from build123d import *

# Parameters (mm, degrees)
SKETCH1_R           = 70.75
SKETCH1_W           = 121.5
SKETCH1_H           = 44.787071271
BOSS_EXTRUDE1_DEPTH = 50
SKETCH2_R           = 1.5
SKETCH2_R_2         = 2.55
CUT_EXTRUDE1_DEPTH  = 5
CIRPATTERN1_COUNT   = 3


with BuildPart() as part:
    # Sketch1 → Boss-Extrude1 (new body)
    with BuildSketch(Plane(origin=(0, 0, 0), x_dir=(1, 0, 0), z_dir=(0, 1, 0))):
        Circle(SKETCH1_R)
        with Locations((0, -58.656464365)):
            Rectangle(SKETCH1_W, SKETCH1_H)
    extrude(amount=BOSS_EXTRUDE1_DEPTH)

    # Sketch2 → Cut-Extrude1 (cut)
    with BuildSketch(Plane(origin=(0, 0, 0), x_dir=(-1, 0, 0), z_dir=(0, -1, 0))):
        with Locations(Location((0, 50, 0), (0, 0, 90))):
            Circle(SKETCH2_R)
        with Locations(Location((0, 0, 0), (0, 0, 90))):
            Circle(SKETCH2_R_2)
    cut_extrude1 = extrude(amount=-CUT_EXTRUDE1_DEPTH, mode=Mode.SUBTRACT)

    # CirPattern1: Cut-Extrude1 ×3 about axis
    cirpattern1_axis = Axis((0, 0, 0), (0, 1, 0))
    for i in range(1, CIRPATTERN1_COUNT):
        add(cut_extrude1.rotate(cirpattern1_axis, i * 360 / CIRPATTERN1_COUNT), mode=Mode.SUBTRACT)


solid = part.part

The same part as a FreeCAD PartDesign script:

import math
import FreeCAD as App
import Part
import Sketcher

doc = App.newDocument("Part")
body = doc.addObject("PartDesign::Body", "Body")

sketch1 = body.newObject("Sketcher::SketchObject", "Sketch")
sketch1.AttachmentSupport = (doc.getObject("XZ_Plane"), [""])
sketch1.MapMode = "FlatFace"
sketch1.addGeometry(Part.ArcOfCircle(Part.Circle(App.Vector(0, 0, 0), App.Vector(0, 0, 1), 71), math.radians(149), math.radians(391)), False)
sketch1.addGeometry(Part.LineSegment(App.Vector(-61, 36, 0), App.Vector(-61, 81, 0)), False)
sketch1.addGeometry(Part.LineSegment(App.Vector(-61, 81, 0), App.Vector(61, 81, 0)), False)
sketch1.addGeometry(Part.LineSegment(App.Vector(61, 81, 0), App.Vector(61, 36, 0)), False)
sketch1.addConstraint(Sketcher.Constraint("Coincident", 0, 1, 1, 1))
sketch1.addConstraint(Sketcher.Constraint("Coincident", 1, 2, 2, 1))
sketch1.addConstraint(Sketcher.Constraint("Coincident", 2, 2, 3, 1))
sketch1.addConstraint(Sketcher.Constraint("Coincident", 3, 2, 0, 2))
sketch1.addConstraint(Sketcher.Constraint("Vertical", 1))
sketch1.addConstraint(Sketcher.Constraint("Horizontal", 2))
sketch1.addConstraint(Sketcher.Constraint("Vertical", 3))
sketch1.addConstraint(Sketcher.Constraint("Coincident", 0, 3, -1, 1))
sketch1.addConstraint(Sketcher.Constraint("Horizontal", 0, 1, 3, 2))
sketch1.addConstraint(Sketcher.Constraint("Radius", 0, 70.75))
sketch1.addConstraint(Sketcher.Constraint("DistanceX", 2, 1, 2, 2, 121.5))
sketch1.addConstraint(Sketcher.Constraint("DistanceY", -1, 1, 1, 2, 81.05))
pad1 = body.newObject("PartDesign::Pad", "Pad")
pad1.Profile = sketch1
pad1.Length = 50
pad1.Reversed = True

sketch2 = body.newObject("Sketcher::SketchObject", "Sketch001")
sketch2.AttachmentSupport = (doc.getObject("XZ_Plane"), [""])
sketch2.MapMode = "FlatFace"
sketch2.addGeometry(Part.Circle(App.Vector(0, -50, 0), App.Vector(0, 0, 1), 1.5), False)
sketch2.addGeometry(Part.Circle(App.Vector(0, 0, 0), App.Vector(0, 0, 1), 2.5), False)
sketch2.addConstraint(Sketcher.Constraint("Coincident", 1, 3, -1, 1))
sketch2.addConstraint(Sketcher.Constraint("PointOnObject", 0, 3, -2))
sketch2.addConstraint(Sketcher.Constraint("Diameter", 0, 3.0))
sketch2.addConstraint(Sketcher.Constraint("Diameter", 1, 5.1))
sketch2.addConstraint(Sketcher.Constraint("DistanceY", 0, 3, -1, 1, 50.0))
pocket1 = body.newObject("PartDesign::Pocket", "Pocket")
pocket1.Profile = sketch2
pocket1.Length = 5
doc.recompute()

polarpattern = body.newObject("PartDesign::PolarPattern", "PolarPattern")
polarpattern.Originals = [pocket1]
polarpattern.Axis = (doc.getObject("Y_Axis"), [""])
polarpattern.Angle = 360
polarpattern.Occurrences = 3
body.Tip = polarpattern

doc.recompute()
